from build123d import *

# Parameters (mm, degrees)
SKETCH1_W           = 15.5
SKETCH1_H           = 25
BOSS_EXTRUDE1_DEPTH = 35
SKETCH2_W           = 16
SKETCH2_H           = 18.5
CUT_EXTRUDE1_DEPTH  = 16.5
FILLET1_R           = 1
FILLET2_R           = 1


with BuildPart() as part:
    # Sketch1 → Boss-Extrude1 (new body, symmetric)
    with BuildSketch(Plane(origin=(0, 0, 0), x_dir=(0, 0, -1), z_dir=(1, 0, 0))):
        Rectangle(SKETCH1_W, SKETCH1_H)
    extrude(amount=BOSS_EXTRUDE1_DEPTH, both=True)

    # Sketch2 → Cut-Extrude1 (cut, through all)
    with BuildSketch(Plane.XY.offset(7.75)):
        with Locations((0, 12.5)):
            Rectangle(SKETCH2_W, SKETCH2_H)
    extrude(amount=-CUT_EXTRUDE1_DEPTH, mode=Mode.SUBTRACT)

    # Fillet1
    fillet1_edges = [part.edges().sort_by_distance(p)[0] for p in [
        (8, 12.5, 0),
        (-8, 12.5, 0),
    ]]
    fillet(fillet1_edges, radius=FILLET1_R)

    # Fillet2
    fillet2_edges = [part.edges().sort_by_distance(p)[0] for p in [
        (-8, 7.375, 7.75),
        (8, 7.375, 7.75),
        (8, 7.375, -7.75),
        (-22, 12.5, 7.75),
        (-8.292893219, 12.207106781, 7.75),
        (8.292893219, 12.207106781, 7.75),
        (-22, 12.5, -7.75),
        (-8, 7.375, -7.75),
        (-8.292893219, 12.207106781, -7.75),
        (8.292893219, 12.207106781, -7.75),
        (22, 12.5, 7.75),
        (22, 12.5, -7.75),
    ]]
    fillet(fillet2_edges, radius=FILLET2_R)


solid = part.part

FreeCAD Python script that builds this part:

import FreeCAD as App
import Part
import Sketcher
from FreeCAD import Vector
Q = App.Units.Quantity


def edges_at(feature, points):
    """Names of the edges that pass closest to the given points."""
    edges = feature.Shape.Edges
    near = lambda p: min(range(len(edges)), key=lambda i: edges[i].distToShape(Part.Vertex(*p))[0])
    return sorted({f"Edge{near(p) + 1}" for p in points})


def add_polygon(sketch, points):
    """Adds a closed chain of lines whose ends are joined by coincident constraints."""
    first, n = sketch.GeometryCount, len(points)
    for a, b in zip(points, points[1:] + points[:1]):
        sketch.addGeometry(Part.LineSegment(App.Vector(*a, 0), App.Vector(*b, 0)), False)
    for i in range(n):
        sketch.addConstraint(Sketcher.Constraint("Coincident", first + i, 2, first + (i + 1) % n, 1))

doc = App.newDocument("Part")
body = doc.addObject("PartDesign::Body", "Body")

sketch1 = doc.addObject("Sketcher::SketchObject", "Sketch")
body.addObject(sketch1)
sketch1.AttachmentSupport = (doc.YZ_Plane, [""])
sketch1.MapMode = "FlatFace"
add_polygon(sketch1, [(12.5, 7.75), (-12.5, 7.75), (-12.5, -7.75), (12.5, -7.75)])
sketch1.addConstraint([
    Sketcher.Constraint("Horizontal", 0),
    Sketcher.Constraint("Vertical", 1),
    Sketcher.Constraint("Horizontal", 2),
    Sketcher.Constraint("Vertical", 3),
    Sketcher.Constraint("Symmetric", 0, 2, 2, 2, -1, 1),
    Sketcher.Constraint("DistanceX", 0, 2, 0, 1, Q("25 mm")),
    Sketcher.Constraint("DistanceY", 1, 2, 1, 1, Q("15.5 mm")),
])
pad1 = doc.addObject("PartDesign::Pad", "Pad")
body.addObject(pad1)
pad1.Profile = sketch1
pad1.Length = 70
pad1.Midplane = True

sketch2 = doc.addObject("Sketcher::SketchObject", "Sketch001")
body.addObject(sketch2)
sketch2.AttachmentSupport = (doc.XY_Plane, [""])
sketch2.MapMode = "FlatFace"
sketch2.AttachmentOffset = App.Placement(Vector(0, 0, 7.75), App.Rotation())
add_polygon(sketch2, [(-8, 21.75), (-8, 3.25), (8, 3.25), (8, 21.75)])
sketch2.addConstraint([
    Sketcher.Constraint("Vertical", 0),
    Sketcher.Constraint("Horizontal", 1),
    Sketcher.Constraint("Vertical", 2),
    Sketcher.Constraint("Horizontal", 3),
    Sketcher.Constraint("DistanceX", 1, 1, 1, 2, Q("16 mm")),
    Sketcher.Constraint("DistanceY", 0, 2, 0, 1, Q("18.5 mm")),
    Sketcher.Constraint("DistanceX", 0, 2, -1, 1, Q("8 mm")),
    Sketcher.Constraint("DistanceY", -1, 1, 0, 2, Q("3.25 mm")),
])
pocket1 = doc.addObject("PartDesign::Pocket", "Pocket")
body.addObject(pocket1)
pocket1.Profile = sketch2
pocket1.Type = "ThroughAll"
doc.recompute()

fillet = doc.addObject("PartDesign::Fillet", "Fillet")
body.addObject(fillet)
fillet.Base = (pocket1, edges_at(pocket1, [(8, 12.5, 0), (-8, 12.5, 0)]))
fillet.Radius = 1
doc.recompute()

fillet2 = doc.addObject("PartDesign::Fillet", "Fillet001")
body.addObject(fillet2)
fillet2.Base = (fillet, edges_at(fillet, [
    (-8, 7.375, 7.75),
    (8, 7.375, 7.75),
    (8, 7.375, -7.75),
    (-22, 12.5, 7.75),
    (-8.293, 12.207, 7.75),
    (8.293, 12.207, 7.75),
    (-22, 12.5, -7.75),
    (-8, 7.375, -7.75),
    (-8.293, 12.207, -7.75),
    (8.293, 12.207, -7.75),
    (22, 12.5, 7.75),
    (22, 12.5, -7.75),
]))
fillet2.Radius = 1

doc.recompute()
